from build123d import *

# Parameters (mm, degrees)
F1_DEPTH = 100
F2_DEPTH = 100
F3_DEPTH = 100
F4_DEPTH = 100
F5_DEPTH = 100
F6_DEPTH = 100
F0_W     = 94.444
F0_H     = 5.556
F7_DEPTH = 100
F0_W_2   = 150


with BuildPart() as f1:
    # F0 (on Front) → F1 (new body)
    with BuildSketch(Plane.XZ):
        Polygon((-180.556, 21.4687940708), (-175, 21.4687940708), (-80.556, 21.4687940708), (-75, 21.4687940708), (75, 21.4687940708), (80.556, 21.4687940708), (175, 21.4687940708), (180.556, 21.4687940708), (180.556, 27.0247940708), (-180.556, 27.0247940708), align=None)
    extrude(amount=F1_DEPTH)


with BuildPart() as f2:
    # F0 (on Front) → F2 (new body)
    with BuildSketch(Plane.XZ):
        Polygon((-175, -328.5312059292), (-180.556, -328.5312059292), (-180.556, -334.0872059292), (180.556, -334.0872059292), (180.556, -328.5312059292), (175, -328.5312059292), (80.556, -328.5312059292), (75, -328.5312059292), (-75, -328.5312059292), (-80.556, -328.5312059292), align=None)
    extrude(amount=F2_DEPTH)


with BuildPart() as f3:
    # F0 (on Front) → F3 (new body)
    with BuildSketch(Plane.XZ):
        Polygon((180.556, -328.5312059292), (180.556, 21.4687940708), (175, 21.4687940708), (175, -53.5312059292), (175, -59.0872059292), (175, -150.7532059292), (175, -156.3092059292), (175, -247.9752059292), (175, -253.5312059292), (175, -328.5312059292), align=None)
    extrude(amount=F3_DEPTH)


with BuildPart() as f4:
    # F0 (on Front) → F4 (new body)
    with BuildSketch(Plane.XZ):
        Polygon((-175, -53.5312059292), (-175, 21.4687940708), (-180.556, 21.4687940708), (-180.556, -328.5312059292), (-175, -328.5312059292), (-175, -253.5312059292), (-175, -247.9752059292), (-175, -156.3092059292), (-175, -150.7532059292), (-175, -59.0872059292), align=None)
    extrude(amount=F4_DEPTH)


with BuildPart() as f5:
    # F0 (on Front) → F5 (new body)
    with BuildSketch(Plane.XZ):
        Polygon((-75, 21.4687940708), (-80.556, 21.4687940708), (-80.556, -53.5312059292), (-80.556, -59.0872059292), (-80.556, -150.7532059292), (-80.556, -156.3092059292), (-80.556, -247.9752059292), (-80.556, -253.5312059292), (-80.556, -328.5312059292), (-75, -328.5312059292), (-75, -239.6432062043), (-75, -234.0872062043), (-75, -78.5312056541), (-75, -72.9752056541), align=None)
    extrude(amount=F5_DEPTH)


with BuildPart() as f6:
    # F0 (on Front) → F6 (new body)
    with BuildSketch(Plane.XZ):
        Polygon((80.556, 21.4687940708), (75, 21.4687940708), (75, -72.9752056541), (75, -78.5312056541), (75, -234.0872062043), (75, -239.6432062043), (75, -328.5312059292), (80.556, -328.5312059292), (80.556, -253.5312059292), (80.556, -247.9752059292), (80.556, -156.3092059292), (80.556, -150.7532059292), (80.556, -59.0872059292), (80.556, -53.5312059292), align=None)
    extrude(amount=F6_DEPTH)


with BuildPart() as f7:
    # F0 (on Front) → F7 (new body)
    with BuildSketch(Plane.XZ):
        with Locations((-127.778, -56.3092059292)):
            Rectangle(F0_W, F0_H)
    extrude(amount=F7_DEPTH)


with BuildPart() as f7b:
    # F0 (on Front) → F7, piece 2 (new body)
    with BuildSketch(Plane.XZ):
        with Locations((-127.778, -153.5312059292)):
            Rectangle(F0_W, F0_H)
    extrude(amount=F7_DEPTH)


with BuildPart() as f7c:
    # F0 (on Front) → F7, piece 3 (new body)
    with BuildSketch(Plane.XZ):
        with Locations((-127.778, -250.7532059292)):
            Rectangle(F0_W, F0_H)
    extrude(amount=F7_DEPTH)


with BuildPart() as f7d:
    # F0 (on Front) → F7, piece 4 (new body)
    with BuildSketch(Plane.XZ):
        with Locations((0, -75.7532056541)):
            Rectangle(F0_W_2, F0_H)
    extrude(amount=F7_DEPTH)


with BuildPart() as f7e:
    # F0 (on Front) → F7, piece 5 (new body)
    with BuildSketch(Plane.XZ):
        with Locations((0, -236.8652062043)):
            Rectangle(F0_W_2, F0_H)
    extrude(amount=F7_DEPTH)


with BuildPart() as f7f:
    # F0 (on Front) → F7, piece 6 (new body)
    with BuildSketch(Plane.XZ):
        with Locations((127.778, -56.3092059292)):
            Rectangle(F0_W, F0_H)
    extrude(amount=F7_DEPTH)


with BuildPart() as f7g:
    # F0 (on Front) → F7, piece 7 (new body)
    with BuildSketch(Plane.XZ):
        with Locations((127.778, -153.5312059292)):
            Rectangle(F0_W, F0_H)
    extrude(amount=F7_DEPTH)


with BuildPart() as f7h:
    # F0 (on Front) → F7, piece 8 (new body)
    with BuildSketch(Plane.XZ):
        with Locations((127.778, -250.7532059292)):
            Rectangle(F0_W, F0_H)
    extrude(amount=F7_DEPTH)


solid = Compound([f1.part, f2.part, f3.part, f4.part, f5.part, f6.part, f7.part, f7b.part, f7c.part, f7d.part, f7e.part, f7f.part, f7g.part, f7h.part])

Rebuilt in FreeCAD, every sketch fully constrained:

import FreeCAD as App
import Part
import Sketcher
from FreeCAD import Vector
Q = App.Units.Quantity

doc = App.newDocument("Part")
body = doc.addObject("PartDesign::Body", "Body")

# Sketch on XZ plane
sketch1 = body.newObject("Sketcher::SketchObject", "Sketch")
sketch1.AttachmentSupport = (doc.getObject("XZ_Plane"), [""])
sketch1.MapMode = "FlatFace"
sketch1.addGeometry([
    Part.LineSegment(Vector(-181, 21, 0), Vector(181, 21, 0)),
    Part.LineSegment(Vector(181, 21, 0), Vector(181, 27, 0)),
    Part.LineSegment(Vector(181, 27, 0), Vector(-181, 27, 0)),
    Part.LineSegment(Vector(-181, 27, 0), Vector(-181, 21, 0)),
], False)
sketch1.addConstraint([
    Sketcher.Constraint("Coincident", 0, 2, 1, 1),
    Sketcher.Constraint("Coincident", 1, 2, 2, 1),
    Sketcher.Constraint("Coincident", 2, 2, 3, 1),
    Sketcher.Constraint("Coincident", 3, 2, 0, 1),
    Sketcher.Constraint("Horizontal", 0),
    Sketcher.Constraint("Vertical", 1),
    Sketcher.Constraint("Horizontal", 2),
    Sketcher.Constraint("Vertical", 3),
    Sketcher.Constraint("DistanceX", 0, 1, 0, 2, Q("361.112 mm")),
    Sketcher.Constraint("DistanceY", 1, 1, 1, 2, Q("5.556 mm")),
    Sketcher.Constraint("DistanceX", -1, 1, 0, 2, Q("180.556 mm")),
    Sketcher.Constraint("DistanceY", -1, 1, 0, 2, Q("21.468794 mm")),
])
pad1 = body.newObject("PartDesign::Pad", "Pad")
pad1.Profile = sketch1
pad1.Length = 100
body2 = doc.addObject("PartDesign::Body", "Body001")

# Sketch on XZ plane
sketch2 = body2.newObject("Sketcher::SketchObject", "Sketch001")
sketch2.AttachmentSupport = (doc.getObject("XZ_Plane001"), [""])
sketch2.MapMode = "FlatFace"
sketch2.addGeometry([
    Part.LineSegment(Vector(-181, -329, 0), Vector(-181, -334, 0)),
    Part.LineSegment(Vector(-181, -334, 0), Vector(181, -334, 0)),
    Part.LineSegment(Vector(181, -334, 0), Vector(181, -329, 0)),
    Part.LineSegment(Vector(181, -329, 0), Vector(-181, -329, 0)),
], False)
sketch2.addConstraint([
    Sketcher.Constraint("Coincident", 0, 2, 1, 1),
    Sketcher.Constraint("Coincident", 1, 2, 2, 1),
    Sketcher.Constraint("Coincident", 2, 2, 3, 1),
    Sketcher.Constraint("Coincident", 3, 2, 0, 1),
    Sketcher.Constraint("Vertical", 0),
    Sketcher.Constraint("Horizontal", 1),
    Sketcher.Constraint("Vertical", 2),
    Sketcher.Constraint("Horizontal", 3),
    Sketcher.Constraint("DistanceX", 1, 1, 1, 2, Q("361.112 mm")),
    Sketcher.Constraint("DistanceY", 0, 2, 0, 1, Q("5.556 mm")),
    Sketcher.Constraint("DistanceX", 0, 2, -1, 1, Q("180.556 mm")),
    Sketcher.Constraint("DistanceY", 0, 2, -1, 1, Q("334.087206 mm")),
])
pad2 = body2.newObject("PartDesign::Pad", "Pad001")
pad2.Profile = sketch2
pad2.Length = 100
body3 = doc.addObject("PartDesign::Body", "Body002")

# Sketch on XZ plane
sketch3 = body3.newObject("Sketcher::SketchObject", "Sketch002")
sketch3.AttachmentSupport = (doc.getObject("XZ_Plane002"), [""])
sketch3.MapMode = "FlatFace"
sketch3.addGeometry([
    Part.LineSegment(Vector(181, -329, 0), Vector(181, 21, 0)),
    Part.LineSegment(Vector(181, 21, 0), Vector(175, 21, 0)),
    Part.LineSegment(Vector(175, 21, 0), Vector(175, -329, 0)),
    Part.LineSegment(Vector(175, -329, 0), Vector(181, -329, 0)),
], False)
sketch3.addConstraint([
    Sketcher.Constraint("Coincident", 0, 2, 1, 1),
    Sketcher.Constraint("Coincident", 1, 2, 2, 1),
    Sketcher.Constraint("Coincident", 2, 2, 3, 1),
    Sketcher.Constraint("Coincident", 3, 2, 0, 1),
    Sketcher.Constraint("Vertical", 0),
    Sketcher.Constraint("Horizontal", 1),
    Sketcher.Constraint("Vertical", 2),
    Sketcher.Constraint("Horizontal", 3),
    Sketcher.Constraint("DistanceY", 0, 1, 0, 2, Q("350 mm")),
    Sketcher.Constraint("DistanceX", -1, 1, 1, 2, Q("175 mm")),
    Sketcher.Constraint("DistanceX", 1, 2, 1, 1, Q("5.556 mm")),
    Sketcher.Constraint("DistanceY", -1, 1, 0, 2, Q("21.468794 mm")),
])
pad3 = body3.newObject("PartDesign::Pad", "Pad002")
pad3.Profile = sketch3
pad3.Length = 100
body4 = doc.addObject("PartDesign::Body", "Body003")

# Sketch on XZ plane
sketch4 = body4.newObject("Sketcher::SketchObject", "Sketch003")
sketch4.AttachmentSupport = (doc.getObject("XZ_Plane003"), [""])
sketch4.MapMode = "FlatFace"
sketch4.addGeometry([
    Part.LineSegment(Vector(-175, 21, 0), Vector(-181, 21, 0)),
    Part.LineSegment(Vector(-181, 21, 0), Vector(-181, -329, 0)),
    Part.LineSegment(Vector(-181, -329, 0), Vector(-175, -329, 0)),
    Part.LineSegment(Vector(-175, -329, 0), Vector(-175, 21, 0)),
], False)
sketch4.addConstraint([
    Sketcher.Constraint("Coincident", 0, 2, 1, 1),
    Sketcher.Constraint("Coincident", 1, 2, 2, 1),
    Sketcher.Constraint("Coincident", 2, 2, 3, 1),
    Sketcher.Constraint("Coincident", 3, 2, 0, 1),
    Sketcher.Constraint("Horizontal", 0),
    Sketcher.Constraint("Vertical", 1),
    Sketcher.Constraint("Horizontal", 2),
    Sketcher.Constraint("Vertical", 3),
    Sketcher.Constraint("DistanceY", 1, 2, 1, 1, Q("350 mm")),
    Sketcher.Constraint("DistanceX", 2, 2, -1, 1, Q("175 mm")),
    Sketcher.Constraint("DistanceX", 0, 2, 0, 1, Q("5.556 mm")),
    Sketcher.Constraint("DistanceY", -1, 1, 0, 2, Q("21.468794 mm")),
])
pad4 = body4.newObject("PartDesign::Pad", "Pad003")
pad4.Profile = sketch4
pad4.Length = 100
body5 = doc.addObject("PartDesign::Body", "Body004")

# Sketch on XZ plane
sketch5 = body5.newObject("Sketcher::SketchObject", "Sketch004")
sketch5.AttachmentSupport = (doc.getObject("XZ_Plane004"), [""])
sketch5.MapMode = "FlatFace"
sketch5.addGeometry([
    Part.LineSegment(Vector(-75, 21, 0), Vector(-81, 21, 0)),
    Part.LineSegment(Vector(-81, 21, 0), Vector(-81, -329, 0)),
    Part.LineSegment(Vector(-81, -329, 0), Vector(-75, -329, 0)),
    Part.LineSegment(Vector(-75, -329, 0), Vector(-75, 21, 0)),
], False)
sketch5.addConstraint([
    Sketcher.Constraint("Coincident", 0, 2, 1, 1),
    Sketcher.Constraint("Coincident", 1, 2, 2, 1),
    Sketcher.Constraint("Coincident", 2, 2, 3, 1),
    Sketcher.Constraint("Coincident", 3, 2, 0, 1),
    Sketcher.Constraint("Horizontal", 0),
    Sketcher.Constraint("Vertical", 1),
    Sketcher.Constraint("Horizontal", 2),
    Sketcher.Constraint("Vertical", 3),
    Sketcher.Constraint("DistanceY", 1, 2, 1, 1, Q("350 mm")),
    Sketcher.Constraint("DistanceX", 2, 2, -1, 1, Q("75 mm")),
    Sketcher.Constraint("DistanceX", 0, 2, 0, 1, Q("5.556 mm")),
    Sketcher.Constraint("DistanceY", -1, 1, 0, 2, Q("21.468794 mm")),
])
pad5 = body5.newObject("PartDesign::Pad", "Pad004")
pad5.Profile = sketch5
pad5.Length = 100
body6 = doc.addObject("PartDesign::Body", "Body005")

# Sketch on XZ plane
sketch6 = body6.newObject("Sketcher::SketchObject", "Sketch005")
sketch6.AttachmentSupport = (doc.getObject("XZ_Plane005"), [""])
sketch6.MapMode = "FlatFace"
sketch6.addGeometry([
    Part.LineSegment(Vector(81, 21, 0), Vector(75, 21, 0)),
    Part.LineSegment(Vector(75, 21, 0), Vector(75, -329, 0)),
    Part.LineSegment(Vector(75, -329, 0), Vector(81, -329, 0)),
    Part.LineSegment(Vector(81, -329, 0), Vector(81, 21, 0)),
], False)
sketch6.addConstraint([
    Sketcher.Constraint("Coincident", 0, 2, 1, 1),
    Sketcher.Constraint("Coincident", 1, 2, 2, 1),
    Sketcher.Constraint("Coincident", 2, 2, 3, 1),
    Sketcher.Constraint("Coincident", 3, 2, 0, 1),
    Sketcher.Constraint("Horizontal", 0),
    Sketcher.Constraint("Vertical", 1),
    Sketcher.Constraint("Horizontal", 2),
    Sketcher.Constraint("Vertical", 3),
    Sketcher.Constraint("DistanceY", 1, 2, 1, 1, Q("350 mm")),
    Sketcher.Constraint("DistanceX", -1, 1, 0, 2, Q("75 mm")),
    Sketcher.Constraint("DistanceX", 0, 2, 0, 1, Q("5.556 mm")),
    Sketcher.Constraint("DistanceY", -1, 1, 0, 2, Q("21.468794 mm")),
])
pad6 = body6.newObject("PartDesign::Pad", "Pad005")
pad6.Profile = sketch6
pad6.Length = 100
body7 = doc.addObject("PartDesign::Body", "Body006")

# Sketch on XZ plane
sketch7 = body7.newObject("Sketcher::SketchObject", "Sketch006")
sketch7.AttachmentSupport = (doc.getObject("XZ_Plane006"), [""])
sketch7.MapMode = "FlatFace"
sketch7.addGeometry([
    Part.LineSegment(Vector(-175, -54, 0), Vector(-175, -59, 0)),
    Part.LineSegment(Vector(-175, -59, 0), Vector(-81, -59, 0)),
    Part.LineSegment(Vector(-81, -59, 0), Vector(-81, -54, 0)),
    Part.LineSegment(Vector(-81, -54, 0), Vector(-175, -54, 0)),
], False)
sketch7.addConstraint([
    Sketcher.Constraint("Coincident", 0, 2, 1, 1),
    Sketcher.Constraint("Coincident", 1, 2, 2, 1),
    Sketcher.Constraint("Coincident", 2, 2, 3, 1),
    Sketcher.Constraint("Coincident", 3, 2, 0, 1),
    Sketcher.Constraint("Vertical", 0),
    Sketcher.Constraint("Horizontal", 1),
    Sketcher.Constraint("Vertical", 2),
    Sketcher.Constraint("Horizontal", 3),
    Sketcher.Constraint("DistanceX", 0, 2, -1, 1, Q("175 mm")),
    Sketcher.Constraint("DistanceX", 1, 1, 1, 2, Q("94.444 mm")),
    Sketcher.Constraint("DistanceY", 0, 2, 0, 1, Q("5.556 mm")),
    Sketcher.Constraint("DistanceY", 0, 2, -1, 1, Q("59.087206 mm")),
])
pad7 = body7.newObject("PartDesign::Pad", "Pad006")
pad7.Profile = sketch7
pad7.Length = 100
body8 = doc.addObject("PartDesign::Body", "Body007")

# Sketch on XZ plane
sketch8 = body8.newObject("Sketcher::SketchObject", "Sketch007")
sketch8.AttachmentSupport = (doc.getObject("XZ_Plane007"), [""])
sketch8.MapMode = "FlatFace"
sketch8.addGeometry([
    Part.LineSegment(Vector(-175, -151, 0), Vector(-175, -156, 0)),
    Part.LineSegment(Vector(-175, -156, 0), Vector(-81, -156, 0)),
    Part.LineSegment(Vector(-81, -156, 0), Vector(-81, -151, 0)),
    Part.LineSegment(Vector(-81, -151, 0), Vector(-175, -151, 0)),
], False)
sketch8.addConstraint([
    Sketcher.Constraint("Coincident", 0, 2, 1, 1),
    Sketcher.Constraint("Coincident", 1, 2, 2, 1),
    Sketcher.Constraint("Coincident", 2, 2, 3, 1),
    Sketcher.Constraint("Coincident", 3, 2, 0, 1),
    Sketcher.Constraint("Vertical", 0),
    Sketcher.Constraint("Horizontal", 1),
    Sketcher.Constraint("Vertical", 2),
    Sketcher.Constraint("Horizontal", 3),
    Sketcher.Constraint("DistanceX", 0, 2, -1, 1, Q("175 mm")),
    Sketcher.Constraint("DistanceX", 1, 1, 1, 2, Q("94.444 mm")),
    Sketcher.Constraint("DistanceY", 0, 2, 0, 1, Q("5.556 mm")),
    Sketcher.Constraint("DistanceY", 0, 2, -1, 1, Q("156.309206 mm")),
])
pad8 = body8.newObject("PartDesign::Pad", "Pad007")
pad8.Profile = sketch8
pad8.Length = 100
body9 = doc.addObject("PartDesign::Body", "Body008")

# Sketch on XZ plane
sketch9 = body9.newObject("Sketcher::SketchObject", "Sketch008")
sketch9.AttachmentSupport = (doc.getObject("XZ_Plane008"), [""])
sketch9.MapMode = "FlatFace"
sketch9.addGeometry([
    Part.LineSegment(Vector(-175, -248, 0), Vector(-175, -254, 0)),
    Part.LineSegment(Vector(-175, -254, 0), Vector(-81, -254, 0)),
    Part.LineSegment(Vector(-81, -254, 0), Vector(-81, -248, 0)),
    Part.LineSegment(Vector(-81, -248, 0), Vector(-175, -248, 0)),
], False)
sketch9.addConstraint([
    Sketcher.Constraint("Coincident", 0, 2, 1, 1),
    Sketcher.Constraint("Coincident", 1, 2, 2, 1),
    Sketcher.Constraint("Coincident", 2, 2, 3, 1),
    Sketcher.Constraint("Coincident", 3, 2, 0, 1),
    Sketcher.Constraint("Vertical", 0),
    Sketcher.Constraint("Horizontal", 1),
    Sketcher.Constraint("Vertical", 2),
    Sketcher.Constraint("Horizontal", 3),
    Sketcher.Constraint("DistanceX", 0, 2, -1, 1, Q("175 mm")),
    Sketcher.Constraint("DistanceX", 1, 1, 1, 2, Q("94.444 mm")),
    Sketcher.Constraint("DistanceY", 0, 2, 0, 1, Q("5.556 mm")),
    Sketcher.Constraint("DistanceY", 0, 2, -1, 1, Q("253.531206 mm")),
])
pad9 = body9.newObject("PartDesign::Pad", "Pad008")
pad9.Profile = sketch9
pad9.Length = 100
body10 = doc.addObject("PartDesign::Body", "Body009")

# Sketch on XZ plane
sketch10 = body10.newObject("Sketcher::SketchObject", "Sketch009")
sketch10.AttachmentSupport = (doc.getObject("XZ_Plane009"), [""])
sketch10.MapMode = "FlatFace"
sketch10.addGeometry([
    Part.LineSegment(Vector(-75, -73, 0), Vector(-75, -79, 0)),
    Part.LineSegment(Vector(-75, -79, 0), Vector(75, -79, 0)),
    Part.LineSegment(Vector(75, -79, 0), Vector(75, -73, 0)),
    Part.LineSegment(Vector(75, -73, 0), Vector(-75, -73, 0)),
], False)
sketch10.addConstraint([
    Sketcher.Constraint("Coincident", 0, 2, 1, 1),
    Sketcher.Constraint("Coincident", 1, 2, 2, 1),
    Sketcher.Constraint("Coincident", 2, 2, 3, 1),
    Sketcher.Constraint("Coincident", 3, 2, 0, 1),
    Sketcher.Constraint("Vertical", 0),
    Sketcher.Constraint("Horizontal", 1),
    Sketcher.Constraint("Vertical", 2),
    Sketcher.Constraint("Horizontal", 3),
    Sketcher.Constraint("DistanceX", 1, 1, 1, 2, Q("150 mm")),
    Sketcher.Constraint("DistanceX", 0, 2, -1, 1, Q("75 mm")),
    Sketcher.Constraint("DistanceY", 0, 2, 0, 1, Q("5.556 mm")),
    Sketcher.Constraint("DistanceY", 0, 2, -1, 1, Q("78.531206 mm")),
])
pad10 = body10.newObject("PartDesign::Pad", "Pad009")
pad10.Profile = sketch10
pad10.Length = 100
body11 = doc.addObject("PartDesign::Body", "Body010")

# Sketch on XZ plane
sketch11 = body11.newObject("Sketcher::SketchObject", "Sketch010")
sketch11.AttachmentSupport = (doc.getObject("XZ_Plane010"), [""])
sketch11.MapMode = "FlatFace"
sketch11.addGeometry([
    Part.LineSegment(Vector(-75, -234, 0), Vector(-75, -240, 0)),
    Part.LineSegment(Vector(-75, -240, 0), Vector(75, -240, 0)),
    Part.LineSegment(Vector(75, -240, 0), Vector(75, -234, 0)),
    Part.LineSegment(Vector(75, -234, 0), Vector(-75, -234, 0)),
], False)
sketch11.addConstraint([
    Sketcher.Constraint("Coincident", 0, 2, 1, 1),
    Sketcher.Constraint("Coincident", 1, 2, 2, 1),
    Sketcher.Constraint("Coincident", 2, 2, 3, 1),
    Sketcher.Constraint("Coincident", 3, 2, 0, 1),
    Sketcher.Constraint("Vertical", 0),
    Sketcher.Constraint("Horizontal", 1),
    Sketcher.Constraint("Vertical", 2),
    Sketcher.Constraint("Horizontal", 3),
    Sketcher.Constraint("DistanceX", 1, 1, 1, 2, Q("150 mm")),
    Sketcher.Constraint("DistanceX", 0, 2, -1, 1, Q("75 mm")),
    Sketcher.Constraint("DistanceY", 0, 2, 0, 1, Q("5.556 mm")),
    Sketcher.Constraint("DistanceY", 0, 2, -1, 1, Q("239.643206 mm")),
])
pad11 = body11.newObject("PartDesign::Pad", "Pad010")
pad11.Profile = sketch11
pad11.Length = 100
body12 = doc.addObject("PartDesign::Body", "Body011")

# Sketch on XZ plane
sketch12 = body12.newObject("Sketcher::SketchObject", "Sketch011")
sketch12.AttachmentSupport = (doc.getObject("XZ_Plane011"), [""])
sketch12.MapMode = "FlatFace"
sketch12.addGeometry([
    Part.LineSegment(Vector(81, -54, 0), Vector(81, -59, 0)),
    Part.LineSegment(Vector(81, -59, 0), Vector(175, -59, 0)),
    Part.LineSegment(Vector(175, -59, 0), Vector(175, -54, 0)),
    Part.LineSegment(Vector(175, -54, 0), Vector(81, -54, 0)),
], False)
sketch12.addConstraint([
    Sketcher.Constraint("Coincident", 0, 2, 1, 1),
    Sketcher.Constraint("Coincident", 1, 2, 2, 1),
    Sketcher.Constraint("Coincident", 2, 2, 3, 1),
    Sketcher.Constraint("Coincident", 3, 2, 0, 1),
    Sketcher.Constraint("Vertical", 0),
    Sketcher.Constraint("Horizontal", 1),
    Sketcher.Constraint("Vertical", 2),
    Sketcher.Constraint("Horizontal", 3),
    Sketcher.Constraint("DistanceX", -1, 1, 1, 2, Q("175 mm")),
    Sketcher.Constraint("DistanceX", 1, 1, 1, 2, Q("94.444 mm")),
    Sketcher.Constraint("DistanceY", 0, 2, 0, 1, Q("5.556 mm")),
    Sketcher.Constraint("DistanceY", 0, 2, -1, 1, Q("59.087206 mm")),
])
pad12 = body12.newObject("PartDesign::Pad", "Pad011")
pad12.Profile = sketch12
pad12.Length = 100
body13 = doc.addObject("PartDesign::Body", "Body012")

# Sketch on XZ plane
sketch13 = body13.newObject("Sketcher::SketchObject", "Sketch012")
sketch13.AttachmentSupport = (doc.getObject("XZ_Plane012"), [""])
sketch13.MapMode = "FlatFace"
sketch13.addGeometry([
    Part.LineSegment(Vector(81, -151, 0), Vector(81, -156, 0)),
    Part.LineSegment(Vector(81, -156, 0), Vector(175, -156, 0)),
    Part.LineSegment(Vector(175, -156, 0), Vector(175, -151, 0)),
    Part.LineSegment(Vector(175, -151, 0), Vector(81, -151, 0)),
], False)
sketch13.addConstraint([
    Sketcher.Constraint("Coincident", 0, 2, 1, 1),
    Sketcher.Constraint("Coincident", 1, 2, 2, 1),
    Sketcher.Constraint("Coincident", 2, 2, 3, 1),
    Sketcher.Constraint("Coincident", 3, 2, 0, 1),
    Sketcher.Constraint("Vertical", 0),
    Sketcher.Constraint("Horizontal", 1),
    Sketcher.Constraint("Vertical", 2),
    Sketcher.Constraint("Horizontal", 3),
    Sketcher.Constraint("DistanceX", -1, 1, 1, 2, Q("175 mm")),
    Sketcher.Constraint("DistanceX", 1, 1, 1, 2, Q("94.444 mm")),
    Sketcher.Constraint("DistanceY", 0, 2, 0, 1, Q("5.556 mm")),
    Sketcher.Constraint("DistanceY", 0, 2, -1, 1, Q("156.309206 mm")),
])
pad13 = body13.newObject("PartDesign::Pad", "Pad012")
pad13.Profile = sketch13
pad13.Length = 100
body14 = doc.addObject("PartDesign::Body", "Body013")

# Sketch on XZ plane
sketch14 = body14.newObject("Sketcher::SketchObject", "Sketch013")
sketch14.AttachmentSupport = (doc.getObject("XZ_Plane013"), [""])
sketch14.MapMode = "FlatFace"
sketch14.addGeometry([
    Part.LineSegment(Vector(81, -248, 0), Vector(81, -254, 0)),
    Part.LineSegment(Vector(81, -254, 0), Vector(175, -254, 0)),
    Part.LineSegment(Vector(175, -254, 0), Vector(175, -248, 0)),
    Part.LineSegment(Vector(175, -248, 0), Vector(81, -248, 0)),
], False)
sketch14.addConstraint([
    Sketcher.Constraint("Coincident", 0, 2, 1, 1),
    Sketcher.Constraint("Coincident", 1, 2, 2, 1),
    Sketcher.Constraint("Coincident", 2, 2, 3, 1),
    Sketcher.Constraint("Coincident", 3, 2, 0, 1),
    Sketcher.Constraint("Vertical", 0),
    Sketcher.Constraint("Horizontal", 1),
    Sketcher.Constraint("Vertical", 2),
    Sketcher.Constraint("Horizontal", 3),
    Sketcher.Constraint("DistanceX", -1, 1, 1, 2, Q("175 mm")),
    Sketcher.Constraint("DistanceX", 1, 1, 1, 2, Q("94.444 mm")),
    Sketcher.Constraint("DistanceY", 0, 2, 0, 1, Q("5.556 mm")),
    Sketcher.Constraint("DistanceY", 0, 2, -1, 1, Q("253.531206 mm")),
])
pad14 = body14.newObject("PartDesign::Pad", "Pad013")
pad14.Profile = sketch14
pad14.Length = 100

doc.recompute()
